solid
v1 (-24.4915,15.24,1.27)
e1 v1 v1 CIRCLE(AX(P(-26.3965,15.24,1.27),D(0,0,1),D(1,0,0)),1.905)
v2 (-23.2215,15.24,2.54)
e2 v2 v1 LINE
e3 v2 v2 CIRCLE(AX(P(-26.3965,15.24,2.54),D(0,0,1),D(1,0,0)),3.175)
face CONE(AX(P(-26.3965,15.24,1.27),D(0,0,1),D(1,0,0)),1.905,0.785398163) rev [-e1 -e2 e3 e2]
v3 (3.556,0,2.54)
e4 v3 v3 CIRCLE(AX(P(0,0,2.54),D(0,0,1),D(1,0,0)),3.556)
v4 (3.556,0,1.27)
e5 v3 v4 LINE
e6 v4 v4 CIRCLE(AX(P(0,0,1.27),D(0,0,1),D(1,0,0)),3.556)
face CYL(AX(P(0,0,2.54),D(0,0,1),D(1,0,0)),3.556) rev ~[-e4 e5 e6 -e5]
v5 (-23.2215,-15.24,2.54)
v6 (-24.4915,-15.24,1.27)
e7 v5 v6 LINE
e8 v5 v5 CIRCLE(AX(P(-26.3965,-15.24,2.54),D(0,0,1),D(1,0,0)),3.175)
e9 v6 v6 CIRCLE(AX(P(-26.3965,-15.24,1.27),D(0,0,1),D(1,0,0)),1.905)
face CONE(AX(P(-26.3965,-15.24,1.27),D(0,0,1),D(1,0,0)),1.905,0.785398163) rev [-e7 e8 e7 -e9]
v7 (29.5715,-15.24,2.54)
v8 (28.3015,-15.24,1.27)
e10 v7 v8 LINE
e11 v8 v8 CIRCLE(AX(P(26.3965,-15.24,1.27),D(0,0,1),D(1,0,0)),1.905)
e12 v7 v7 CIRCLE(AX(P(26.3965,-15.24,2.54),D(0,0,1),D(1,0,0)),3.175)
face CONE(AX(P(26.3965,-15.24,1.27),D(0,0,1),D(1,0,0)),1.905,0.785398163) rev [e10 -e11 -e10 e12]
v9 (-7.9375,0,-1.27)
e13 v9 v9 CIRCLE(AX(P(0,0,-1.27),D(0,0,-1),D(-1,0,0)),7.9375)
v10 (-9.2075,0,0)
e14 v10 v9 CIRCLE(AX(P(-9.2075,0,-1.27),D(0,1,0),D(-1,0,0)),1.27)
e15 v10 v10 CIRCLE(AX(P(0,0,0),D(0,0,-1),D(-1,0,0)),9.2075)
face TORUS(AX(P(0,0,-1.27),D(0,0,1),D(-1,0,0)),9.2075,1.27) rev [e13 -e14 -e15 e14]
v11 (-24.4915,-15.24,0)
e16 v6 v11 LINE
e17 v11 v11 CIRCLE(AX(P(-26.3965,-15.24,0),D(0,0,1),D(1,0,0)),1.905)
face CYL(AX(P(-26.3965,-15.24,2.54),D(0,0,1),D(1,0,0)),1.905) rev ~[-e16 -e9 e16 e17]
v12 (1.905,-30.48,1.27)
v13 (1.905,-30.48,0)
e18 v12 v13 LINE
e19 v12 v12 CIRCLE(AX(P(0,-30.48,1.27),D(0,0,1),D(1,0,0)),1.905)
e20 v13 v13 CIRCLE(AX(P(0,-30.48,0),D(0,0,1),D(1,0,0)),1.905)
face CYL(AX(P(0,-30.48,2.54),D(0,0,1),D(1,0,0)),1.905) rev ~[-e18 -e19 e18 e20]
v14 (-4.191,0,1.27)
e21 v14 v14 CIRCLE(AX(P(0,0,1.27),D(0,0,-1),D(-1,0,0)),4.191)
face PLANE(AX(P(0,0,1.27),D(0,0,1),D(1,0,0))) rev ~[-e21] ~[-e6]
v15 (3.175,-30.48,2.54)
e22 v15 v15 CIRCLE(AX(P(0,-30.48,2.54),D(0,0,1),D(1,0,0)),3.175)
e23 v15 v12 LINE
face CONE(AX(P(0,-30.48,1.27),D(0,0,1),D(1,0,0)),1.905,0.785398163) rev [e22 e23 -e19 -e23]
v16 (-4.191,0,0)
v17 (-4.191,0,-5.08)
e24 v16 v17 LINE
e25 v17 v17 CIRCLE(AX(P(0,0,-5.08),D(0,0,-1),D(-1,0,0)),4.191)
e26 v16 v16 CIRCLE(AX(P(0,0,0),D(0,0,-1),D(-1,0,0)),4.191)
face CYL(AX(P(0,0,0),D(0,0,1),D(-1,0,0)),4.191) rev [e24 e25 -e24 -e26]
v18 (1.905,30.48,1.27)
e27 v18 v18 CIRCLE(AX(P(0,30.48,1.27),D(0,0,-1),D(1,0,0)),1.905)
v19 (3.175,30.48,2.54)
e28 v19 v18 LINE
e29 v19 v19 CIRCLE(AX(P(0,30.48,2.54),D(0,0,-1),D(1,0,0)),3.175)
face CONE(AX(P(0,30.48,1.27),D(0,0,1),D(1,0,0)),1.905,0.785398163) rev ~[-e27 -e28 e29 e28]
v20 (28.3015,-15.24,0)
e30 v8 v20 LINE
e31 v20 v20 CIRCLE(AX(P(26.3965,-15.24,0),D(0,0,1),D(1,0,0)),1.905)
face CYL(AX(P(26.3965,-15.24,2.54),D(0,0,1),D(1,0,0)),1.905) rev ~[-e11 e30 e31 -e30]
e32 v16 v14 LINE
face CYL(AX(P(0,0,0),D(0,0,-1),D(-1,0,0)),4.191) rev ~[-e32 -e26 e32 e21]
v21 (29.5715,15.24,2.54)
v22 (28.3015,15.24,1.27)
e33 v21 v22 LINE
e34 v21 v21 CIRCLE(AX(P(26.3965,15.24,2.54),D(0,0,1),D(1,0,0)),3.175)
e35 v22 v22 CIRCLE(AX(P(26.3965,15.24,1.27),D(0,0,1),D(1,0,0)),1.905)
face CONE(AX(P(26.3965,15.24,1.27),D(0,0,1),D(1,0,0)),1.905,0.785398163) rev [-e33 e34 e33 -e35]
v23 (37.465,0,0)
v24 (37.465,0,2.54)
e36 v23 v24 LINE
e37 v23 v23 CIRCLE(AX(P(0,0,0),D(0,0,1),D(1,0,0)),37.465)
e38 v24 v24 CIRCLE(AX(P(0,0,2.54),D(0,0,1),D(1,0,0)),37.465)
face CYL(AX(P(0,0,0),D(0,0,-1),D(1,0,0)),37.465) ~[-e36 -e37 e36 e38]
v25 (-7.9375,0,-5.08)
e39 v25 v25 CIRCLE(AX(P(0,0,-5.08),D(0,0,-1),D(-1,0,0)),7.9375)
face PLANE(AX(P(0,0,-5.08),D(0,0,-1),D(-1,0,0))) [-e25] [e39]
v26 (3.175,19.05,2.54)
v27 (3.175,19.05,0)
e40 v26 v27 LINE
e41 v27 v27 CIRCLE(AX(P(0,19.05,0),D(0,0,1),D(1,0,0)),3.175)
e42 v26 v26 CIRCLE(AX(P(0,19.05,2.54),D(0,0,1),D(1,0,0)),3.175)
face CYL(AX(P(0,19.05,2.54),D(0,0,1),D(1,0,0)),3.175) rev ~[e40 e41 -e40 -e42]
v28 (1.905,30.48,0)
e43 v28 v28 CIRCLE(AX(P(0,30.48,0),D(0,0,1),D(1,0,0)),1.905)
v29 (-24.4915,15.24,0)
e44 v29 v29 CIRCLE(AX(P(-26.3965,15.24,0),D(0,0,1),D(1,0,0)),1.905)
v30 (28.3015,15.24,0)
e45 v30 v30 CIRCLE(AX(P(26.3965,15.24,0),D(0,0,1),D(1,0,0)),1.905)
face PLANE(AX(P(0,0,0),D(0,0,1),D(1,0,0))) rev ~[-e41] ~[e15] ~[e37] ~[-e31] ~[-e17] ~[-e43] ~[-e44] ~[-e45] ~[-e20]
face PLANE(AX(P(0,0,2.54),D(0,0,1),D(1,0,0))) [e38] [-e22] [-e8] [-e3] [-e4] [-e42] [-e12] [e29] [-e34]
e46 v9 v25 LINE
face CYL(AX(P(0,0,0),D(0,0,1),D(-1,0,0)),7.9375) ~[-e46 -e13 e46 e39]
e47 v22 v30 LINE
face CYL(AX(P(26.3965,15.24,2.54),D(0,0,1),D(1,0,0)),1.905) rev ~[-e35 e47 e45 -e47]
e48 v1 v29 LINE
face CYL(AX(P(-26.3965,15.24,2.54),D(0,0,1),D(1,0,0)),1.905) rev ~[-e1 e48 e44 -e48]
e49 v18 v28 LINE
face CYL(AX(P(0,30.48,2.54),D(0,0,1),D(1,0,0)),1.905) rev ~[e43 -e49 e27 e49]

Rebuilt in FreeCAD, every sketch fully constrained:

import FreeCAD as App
import Part
import Sketcher
Q = App.Units.Quantity


def edges_at(feature, points):
    """Names of the edges that pass closest to the given points."""
    edges = feature.Shape.Edges
    near = lambda p: min(range(len(edges)), key=lambda i: edges[i].distToShape(Part.Vertex(*p))[0])
    return sorted({f"Edge{near(p) + 1}" for p in points})

doc = App.newDocument("Part")
params = doc.addObject("Spreadsheet::Sheet", "Params")
for row, (alias, value) in enumerate([
    ("sketch1_diameter", "2.95 in"),
    ("pad1_length", "0.1 in"),
    ("sketch2_diameter", "0.33 in"),
    ("sketch3_diameter", "0.33 in"),
    ("sketch3_diameter2", "0.625 in"),
    ("pad2_length", "0.2 in"),
    ("sketch4_diameter", "0.15 in"),
    ("pocket2_length", "1 in"),
    ("sketch5_diameter", "0.28 in"),
    ("sketch5_diameter2", "0.33 in"),
    ("pad3_length", "0.05 in"),
    ("chamfer_size", "0.05 in"),
    ("sketch6_diameter", "0.25 in"),
    ("fillet_radius", "0.05 in"),
], start=1):
    params.set(f"A{row}", alias)
    params.set(f"B{row}", "=" + value)
    params.setAlias(f"B{row}", alias)

body = doc.addObject("PartDesign::Body", "Body")

sketch1 = body.newObject("Sketcher::SketchObject", "Sketch")
sketch1.AttachmentSupport = (doc.getObject("XY_Plane"), [""])
sketch1.MapMode = "FlatFace"
sketch1.addGeometry(Part.Circle(App.Vector(0, 0, 0), App.Vector(0, 0, 1), 37.465), False)
sketch1.addConstraint(Sketcher.Constraint("Coincident", 0, 3, -1, 1))
sketch1.addConstraint(Sketcher.Constraint("Diameter", 0, Q("2.95 in")))
sketch1.setExpression("Constraints[1]", "Params.sketch1_diameter")
pad1 = body.newObject("PartDesign::Pad", "Pad")
pad1.Profile = sketch1
pad1.setExpression("Length", "Params.pad1_length")

sketch2 = body.newObject("Sketcher::SketchObject", "Sketch001")
sketch2.AttachmentSupport = (doc.getObject("XY_Plane"), [""])
sketch2.MapMode = "FlatFace"
sketch2.addGeometry(Part.Circle(App.Vector(0, 0, 0), App.Vector(0, 0, 1), 4.191), False)
sketch2.addConstraint(Sketcher.Constraint("Coincident", 0, 3, -1, 1))
sketch2.addConstraint(Sketcher.Constraint("Diameter", 0, Q("0.33 in")))
sketch2.setExpression("Constraints[1]", "Params.sketch2_diameter")
pocket1 = body.newObject("PartDesign::Pocket", "Pocket")
pocket1.Profile = sketch2
pocket1.Type = "ThroughAll"
pocket1.Reversed = True

sketch3 = body.newObject("Sketcher::SketchObject", "Sketch002")
sketch3.AttachmentSupport = (doc.getObject("XY_Plane"), [""])
sketch3.MapMode = "FlatFace"
sketch3.addGeometry(Part.Circle(App.Vector(0, 0, 0), App.Vector(0, 0, 1), 7.9375), False)
sketch3.addGeometry(Part.Circle(App.Vector(0, 0, 0), App.Vector(0, 0, 1), 4.191), False)
sketch3.addConstraint(Sketcher.Constraint("Coincident", 0, 3, -1, 1))
sketch3.addConstraint(Sketcher.Constraint("Coincident", 1, 3, -1, 1))
sketch3.addConstraint(Sketcher.Constraint("Diameter", 1, Q("0.33 in")))
sketch3.addConstraint(Sketcher.Constraint("Diameter", 0, Q("0.625 in")))
sketch3.setExpression("Constraints[2]", "Params.sketch3_diameter")
sketch3.setExpression("Constraints[3]", "Params.sketch3_diameter2")
pad2 = body.newObject("PartDesign::Pad", "Pad001")
pad2.Profile = sketch3
pad2.setExpression("Length", "Params.pad2_length")
pad2.Reversed = True

sketch4 = body.newObject("Sketcher::SketchObject", "Sketch003")
sketch4.AttachmentSupport = (doc.getObject("XY_Plane"), [""])
sketch4.MapMode = "FlatFace"
sketch4.AttachmentOffset = App.Placement(App.Vector(0, 0, 0.1 * 25.4), App.Rotation())
sketch4.addGeometry(Part.Circle(App.Vector(0, 30.48, 0), App.Vector(0, 0, 1), 1.905), False)
sketch4.addGeometry(Part.Circle(App.Vector(-26.3965, 15.24, 0), App.Vector(0, 0, 1), 1.905), False)
sketch4.addGeometry(Part.Circle(App.Vector(-26.3965, -15.24, 0), App.Vector(0, 0, 1), 1.905), False)
sketch4.addGeometry(Part.Circle(App.Vector(0, -30.48, 0), App.Vector(0, 0, 1), 1.905), False)
sketch4.addGeometry(Part.Circle(App.Vector(26.3965, -15.24, 0), App.Vector(0, 0, 1), 1.905), False)
sketch4.addGeometry(Part.Circle(App.Vector(26.3965, 15.24, 0), App.Vector(0, 0, 1), 1.905), False)
sketch4.addConstraint(Sketcher.Constraint("Equal", 0, 1))
sketch4.addConstraint(Sketcher.Constraint("Equal", 1, 2))
sketch4.addConstraint(Sketcher.Constraint("Equal", 2, 3))
sketch4.addConstraint(Sketcher.Constraint("Equal", 3, 4))
sketch4.addConstraint(Sketcher.Constraint("Equal", 4, 5))
sketch4.addConstraint(Sketcher.Constraint("Symmetric", 0, 3, 3, 3, -1, 1))
sketch4.addConstraint(Sketcher.Constraint("Symmetric", 1, 3, 4, 3, -1, 1))
sketch4.addConstraint(Sketcher.Constraint("Symmetric", 2, 3, 5, 3, -1, 1))
sketch4.addConstraint(Sketcher.Constraint("Symmetric", 2, 3, 4, 3, -2))
sketch4.addConstraint(Sketcher.Constraint("PointOnObject", 0, 3, -2))
sketch4.addConstraint(Sketcher.Constraint("Diameter", 0, Q("0.15 in")))
sketch4.addConstraint(Sketcher.Constraint("DistanceY", -1, 1, 0, 3, Q("1.2 in")))
sketch4.addConstraint(Sketcher.Constraint("DistanceY", 2, 3, 1, 3, Q("1.2 in")))
sketch4.addConstraint(Sketcher.Constraint("DistanceX", 1, 3, -1, 1, Q("26.3965 mm")))
sketch4.setExpression("Constraints[10]", "Params.sketch4_diameter")
pocket2 = body.newObject("PartDesign::Pocket", "Pocket001")
pocket2.Profile = sketch4
pocket2.setExpression("Length", "Params.pocket2_length")

sketch5 = body.newObject("Sketcher::SketchObject", "Sketch004")
sketch5.AttachmentSupport = (doc.getObject("XY_Plane"), [""])
sketch5.MapMode = "FlatFace"
sketch5.AttachmentOffset = App.Placement(App.Vector(0, 0, 0.1 * 25.4), App.Rotation())
sketch5.addGeometry(Part.Circle(App.Vector(0, 0, 0), App.Vector(0, 0, 1), 4.191), False)
sketch5.addGeometry(Part.Circle(App.Vector(0, 0, 0), App.Vector(0, 0, 1), 3.556), False)
sketch5.addConstraint(Sketcher.Constraint("Coincident", 0, 3, -1, 1))
sketch5.addConstraint(Sketcher.Constraint("Coincident", 1, 3, -1, 1))
sketch5.addConstraint(Sketcher.Constraint("Diameter", 1, Q("0.28 in")))
sketch5.addConstraint(Sketcher.Constraint("Diameter", 0, Q("0.33 in")))
sketch5.setExpression("Constraints[2]", "Params.sketch5_diameter")
sketch5.setExpression("Constraints[3]", "Params.sketch5_diameter2")
pad3 = body.newObject("PartDesign::Pad", "Pad002")
pad3.Profile = sketch5
pad3.setExpression("Length", "Params.pad3_length")
pad3.Reversed = True
doc.recompute()

chamfer = body.newObject("PartDesign::Chamfer", "Chamfer")
chamfer.Base = (pad3, edges_at(pad3, [
    (-28.302, -15.24, 2.54),
    (-28.302, 15.24, 2.54),
    (-1.905, 30.48, 2.54),
    (-1.905, -30.48, 2.54),
    (24.491, -15.24, 2.54),
    (24.491, 15.24, 2.54),
]))
chamfer.setExpression("Size", "Params.chamfer_size")

sketch6 = body.newObject("Sketcher::SketchObject", "Sketch005")
sketch6.AttachmentSupport = (doc.getObject("XY_Plane"), [""])
sketch6.MapMode = "FlatFace"
sketch6.AttachmentOffset = App.Placement(App.Vector(0, 0, 0.1 * 25.4), App.Rotation())
sketch6.addGeometry(Part.Circle(App.Vector(0, 19.05, 0), App.Vector(0, 0, 1), 3.175), False)
sketch6.addConstraint(Sketcher.Constraint("PointOnObject", 0, 3, -2))
sketch6.addConstraint(Sketcher.Constraint("Diameter", 0, Q("0.25 in")))
sketch6.addConstraint(Sketcher.Constraint("DistanceY", -1, 1, 0, 3, Q("0.75 in")))
sketch6.setExpression("Constraints[1]", "Params.sketch6_diameter")
pocket3 = body.newObject("PartDesign::Pocket", "Pocket002")
pocket3.Profile = sketch6
pocket3.Type = "ThroughAll"
doc.recompute()

fillet = body.newObject("PartDesign::Fillet", "Fillet")
fillet.Base = (pocket3, edges_at(pocket3, [(7.938, 0, 0)]))
fillet.setExpression("Radius", "Params.fillet_radius")

doc.recompute()
